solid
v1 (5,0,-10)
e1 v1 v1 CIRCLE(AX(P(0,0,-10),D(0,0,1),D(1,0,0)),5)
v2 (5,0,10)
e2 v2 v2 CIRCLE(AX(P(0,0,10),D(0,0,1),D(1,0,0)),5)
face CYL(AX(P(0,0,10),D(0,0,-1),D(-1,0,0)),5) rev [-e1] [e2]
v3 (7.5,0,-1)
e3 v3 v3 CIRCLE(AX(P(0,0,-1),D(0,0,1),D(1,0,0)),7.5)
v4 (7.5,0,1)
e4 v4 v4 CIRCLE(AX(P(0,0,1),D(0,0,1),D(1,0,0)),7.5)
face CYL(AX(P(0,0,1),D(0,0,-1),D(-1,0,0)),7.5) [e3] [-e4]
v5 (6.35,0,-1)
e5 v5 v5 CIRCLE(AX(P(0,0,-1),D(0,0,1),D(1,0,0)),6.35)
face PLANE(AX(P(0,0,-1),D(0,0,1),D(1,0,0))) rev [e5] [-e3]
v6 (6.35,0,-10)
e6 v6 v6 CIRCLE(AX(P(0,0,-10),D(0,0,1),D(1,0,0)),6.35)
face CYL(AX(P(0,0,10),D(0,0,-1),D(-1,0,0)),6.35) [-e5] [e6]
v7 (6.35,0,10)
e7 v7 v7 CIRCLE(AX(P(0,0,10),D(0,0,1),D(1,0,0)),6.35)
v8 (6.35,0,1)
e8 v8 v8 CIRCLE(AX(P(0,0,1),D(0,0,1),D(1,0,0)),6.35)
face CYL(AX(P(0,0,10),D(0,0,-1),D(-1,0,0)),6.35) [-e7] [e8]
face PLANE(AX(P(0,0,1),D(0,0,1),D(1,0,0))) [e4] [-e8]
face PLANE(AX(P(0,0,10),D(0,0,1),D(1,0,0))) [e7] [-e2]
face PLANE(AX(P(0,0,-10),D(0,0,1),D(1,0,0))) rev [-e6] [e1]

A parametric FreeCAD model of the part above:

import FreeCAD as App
import Part
import Sketcher

V = App.Vector
Q = App.Units.Quantity

doc = App.newDocument("Part")
body = doc.addObject("PartDesign::Body", "Body")

# Sketch on XY plane
sketch1 = doc.addObject("Sketcher::SketchObject", "Sketch")
body.addObject(sketch1)
sketch1.AttachmentSupport = (doc.XY_Plane, [""])
sketch1.MapMode = "FlatFace"
sketch1.addGeometry(Part.Circle(V(0, 0, 0), V(0, 0, 1), 6), False)
sketch1.addGeometry(Part.Circle(V(0, 0, 0), V(0, 0, 1), 5), False)
sketch1.addConstraint(Sketcher.Constraint("Coincident", 0, 3, -1, 1))
sketch1.addConstraint(Sketcher.Constraint("Coincident", 1, 3, -1, 1))
sketch1.addConstraint(Sketcher.Constraint("Diameter", 1, Q("10 mm")))
sketch1.addConstraint(Sketcher.Constraint("Diameter", 0, Q("12.7 mm")))
pad1 = doc.addObject("PartDesign::Pad", "Pad")
body.addObject(pad1)
pad1.Profile = sketch1
pad1.Length = 20
pad1.Midplane = True

# Sketch on XY plane
sketch2 = doc.addObject("Sketcher::SketchObject", "Sketch001")
body.addObject(sketch2)
sketch2.AttachmentSupport = (doc.XY_Plane, [""])
sketch2.MapMode = "FlatFace"
sketch2.addGeometry(Part.Circle(V(0, 0, 0), V(0, 0, 1), 8), False)
sketch2.addGeometry(Part.Circle(V(0, 0, 0), V(0, 0, 1), 6), False)
sketch2.addConstraint(Sketcher.Constraint("Coincident", 0, 3, -1, 1))
sketch2.addConstraint(Sketcher.Constraint("Coincident", 1, 3, -1, 1))
sketch2.addConstraint(Sketcher.Constraint("Diameter", 0, Q("15 mm")))
sketch2.addConstraint(Sketcher.Constraint("Diameter", 1, Q("12.7 mm")))
pad2 = doc.addObject("PartDesign::Pad", "Pad001")
body.addObject(pad2)
pad2.Profile = sketch2
pad2.Length = 2
pad2.Midplane = True

doc.recompute()
